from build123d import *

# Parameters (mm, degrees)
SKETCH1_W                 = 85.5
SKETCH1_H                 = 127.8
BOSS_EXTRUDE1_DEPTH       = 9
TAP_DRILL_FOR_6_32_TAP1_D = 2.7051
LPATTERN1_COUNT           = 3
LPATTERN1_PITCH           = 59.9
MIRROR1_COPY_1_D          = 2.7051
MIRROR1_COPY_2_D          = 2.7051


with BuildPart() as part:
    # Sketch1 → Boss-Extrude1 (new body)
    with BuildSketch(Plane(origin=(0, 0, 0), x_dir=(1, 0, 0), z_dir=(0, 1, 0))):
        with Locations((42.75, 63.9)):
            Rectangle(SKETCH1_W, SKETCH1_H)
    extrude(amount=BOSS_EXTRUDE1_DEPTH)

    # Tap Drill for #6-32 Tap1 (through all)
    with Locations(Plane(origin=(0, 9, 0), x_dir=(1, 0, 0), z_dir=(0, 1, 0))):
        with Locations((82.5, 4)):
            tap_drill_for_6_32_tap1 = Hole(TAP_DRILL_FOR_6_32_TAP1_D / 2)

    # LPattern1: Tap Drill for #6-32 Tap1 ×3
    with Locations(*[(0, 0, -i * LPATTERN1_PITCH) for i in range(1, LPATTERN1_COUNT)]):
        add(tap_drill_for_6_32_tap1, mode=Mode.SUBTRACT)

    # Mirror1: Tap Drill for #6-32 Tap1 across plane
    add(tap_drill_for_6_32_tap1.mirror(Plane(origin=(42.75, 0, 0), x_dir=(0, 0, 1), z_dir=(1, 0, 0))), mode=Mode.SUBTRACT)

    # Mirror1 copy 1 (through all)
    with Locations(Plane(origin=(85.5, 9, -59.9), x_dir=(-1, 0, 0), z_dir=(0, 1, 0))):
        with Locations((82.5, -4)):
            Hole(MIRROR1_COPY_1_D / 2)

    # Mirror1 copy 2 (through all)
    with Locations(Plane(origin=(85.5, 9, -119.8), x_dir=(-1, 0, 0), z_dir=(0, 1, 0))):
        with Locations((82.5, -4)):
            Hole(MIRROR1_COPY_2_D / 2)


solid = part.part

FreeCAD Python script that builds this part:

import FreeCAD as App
import Part
import Sketcher
from FreeCAD import Vector
Q = App.Units.Quantity

doc = App.newDocument("Part")
body = doc.addObject("PartDesign::Body", "Body")

# Sketch on XZ plane
sketch1 = doc.addObject("Sketcher::SketchObject", "Sketch")
body.addObject(sketch1)
sketch1.AttachmentSupport = (doc.XZ_Plane, [""])
sketch1.MapMode = "FlatFace"
sketch1.addGeometry([
    Part.LineSegment(Vector(0, -128, 0), Vector(0, 0, 0)),
    Part.LineSegment(Vector(0, 0, 0), Vector(86, 0, 0)),
    Part.LineSegment(Vector(86, 0, 0), Vector(86, -128, 0)),
    Part.LineSegment(Vector(86, -128, 0), Vector(0, -128, 0)),
], False)
sketch1.addConstraint([
    Sketcher.Constraint("Coincident", 0, 2, 1, 1),
    Sketcher.Constraint("Coincident", 1, 2, 2, 1),
    Sketcher.Constraint("Coincident", 2, 2, 3, 1),
    Sketcher.Constraint("Coincident", 3, 2, 0, 1),
    Sketcher.Constraint("Vertical", 0),
    Sketcher.Constraint("Horizontal", 1),
    Sketcher.Constraint("Vertical", 2),
    Sketcher.Constraint("Horizontal", 3),
    Sketcher.Constraint("Coincident", 0, 2, -1, 1),
    Sketcher.Constraint("DistanceX", 1, 1, 1, 2, Q("85.5 mm")),
    Sketcher.Constraint("DistanceY", 0, 1, 0, 2, Q("127.8 mm")),
])
pad1 = doc.addObject("PartDesign::Pad", "Pad")
body.addObject(pad1)
pad1.Profile = sketch1
pad1.Length = 9
pad1.Reversed = True

# Sketch on XZ plane
sketch2 = doc.addObject("Sketcher::SketchObject", "Sketch001")
body.addObject(sketch2)
sketch2.AttachmentSupport = (doc.XZ_Plane, [""])
sketch2.MapMode = "FlatFace"
sketch2.AttachmentOffset = App.Placement(Vector(0, 0, -9), App.Rotation())
sketch2.addGeometry(Part.Circle(Vector(82.5, -4, 0), Vector(0, 0, 1), 1.4), False)
sketch2.addConstraint([
    Sketcher.Constraint("DistanceY", 0, 3, -1, 1, Q("4 mm")),
    Sketcher.Constraint("Diameter", 0, Q("2.7051 mm")),
    Sketcher.Constraint("DistanceX", -1, 1, 0, 3, Q("82.5 mm")),
])
doc.recompute()
hole = doc.addObject("PartDesign::Hole", "Hole")
body.addObject(hole)
hole.Profile = sketch2
hole.ThreadType = "None"
hole.Diameter = 2.7051
hole.DepthType = "ThroughAll"
hole.Reversed = True
doc.recompute()

linearpattern = doc.addObject("PartDesign::LinearPattern", "LinearPattern")
body.addObject(linearpattern)
linearpattern.Originals = [hole]
linearpattern.Direction = (doc.Z_Axis, [""])
linearpattern.Mode = "offset"
linearpattern.Offset = 59.9
linearpattern.Occurrences = 3
linearpattern.Reversed = True
body.Tip = linearpattern
doc.recompute()

datumplane = doc.addObject("PartDesign::Plane", "DatumPlane")
body.addObject(datumplane)
datumplane.AttachmentSupport = (doc.YZ_Plane, [""])
datumplane.MapMode = "FlatFace"
datumplane.AttachmentOffset = App.Placement(Vector(0, 0, 42.75), App.Rotation())
mirrored = doc.addObject("PartDesign::Mirrored", "Mirrored")
body.addObject(mirrored)
mirrored.Originals = [hole]
mirrored.MirrorPlane = (datumplane, [""])
body.Tip = mirrored

# Sketch on XZ plane
sketch3 = doc.addObject("Sketcher::SketchObject", "Sketch002")
body.addObject(sketch3)
sketch3.AttachmentSupport = (doc.XZ_Plane, [""])
sketch3.MapMode = "FlatFace"
sketch3.AttachmentOffset = App.Placement(Vector(0, 0, -9), App.Rotation())
sketch3.addGeometry(Part.Circle(Vector(3, -63.9, 0), Vector(0, 0, 1), 1.4), False)
sketch3.addConstraint([
    Sketcher.Constraint("DistanceX", -1, 1, 0, 3, Q("3 mm")),
    Sketcher.Constraint("Diameter", 0, Q("2.7051 mm")),
    Sketcher.Constraint("DistanceY", 0, 3, -1, 1, Q("63.9 mm")),
])
doc.recompute()
hole2 = doc.addObject("PartDesign::Hole", "Hole001")
body.addObject(hole2)
hole2.Profile = sketch3
hole2.ThreadType = "None"
hole2.Diameter = 2.7051
hole2.DepthType = "ThroughAll"
hole2.Reversed = True

# Sketch on XZ plane
sketch4 = doc.addObject("Sketcher::SketchObject", "Sketch003")
body.addObject(sketch4)
sketch4.AttachmentSupport = (doc.XZ_Plane, [""])
sketch4.MapMode = "FlatFace"
sketch4.AttachmentOffset = App.Placement(Vector(0, 0, -9), App.Rotation())
sketch4.addGeometry(Part.Circle(Vector(3, -123.8, 0), Vector(0, 0, 1), 1.4), False)
sketch4.addConstraint([
    Sketcher.Constraint("DistanceX", -1, 1, 0, 3, Q("3 mm")),
    Sketcher.Constraint("Diameter", 0, Q("2.7051 mm")),
    Sketcher.Constraint("DistanceY", 0, 3, -1, 1, Q("123.8 mm")),
])
doc.recompute()
hole3 = doc.addObject("PartDesign::Hole", "Hole002")
body.addObject(hole3)
hole3.Profile = sketch4
hole3.ThreadType = "None"
hole3.Diameter = 2.7051
hole3.DepthType = "ThroughAll"
hole3.Reversed = True

doc.recompute()
